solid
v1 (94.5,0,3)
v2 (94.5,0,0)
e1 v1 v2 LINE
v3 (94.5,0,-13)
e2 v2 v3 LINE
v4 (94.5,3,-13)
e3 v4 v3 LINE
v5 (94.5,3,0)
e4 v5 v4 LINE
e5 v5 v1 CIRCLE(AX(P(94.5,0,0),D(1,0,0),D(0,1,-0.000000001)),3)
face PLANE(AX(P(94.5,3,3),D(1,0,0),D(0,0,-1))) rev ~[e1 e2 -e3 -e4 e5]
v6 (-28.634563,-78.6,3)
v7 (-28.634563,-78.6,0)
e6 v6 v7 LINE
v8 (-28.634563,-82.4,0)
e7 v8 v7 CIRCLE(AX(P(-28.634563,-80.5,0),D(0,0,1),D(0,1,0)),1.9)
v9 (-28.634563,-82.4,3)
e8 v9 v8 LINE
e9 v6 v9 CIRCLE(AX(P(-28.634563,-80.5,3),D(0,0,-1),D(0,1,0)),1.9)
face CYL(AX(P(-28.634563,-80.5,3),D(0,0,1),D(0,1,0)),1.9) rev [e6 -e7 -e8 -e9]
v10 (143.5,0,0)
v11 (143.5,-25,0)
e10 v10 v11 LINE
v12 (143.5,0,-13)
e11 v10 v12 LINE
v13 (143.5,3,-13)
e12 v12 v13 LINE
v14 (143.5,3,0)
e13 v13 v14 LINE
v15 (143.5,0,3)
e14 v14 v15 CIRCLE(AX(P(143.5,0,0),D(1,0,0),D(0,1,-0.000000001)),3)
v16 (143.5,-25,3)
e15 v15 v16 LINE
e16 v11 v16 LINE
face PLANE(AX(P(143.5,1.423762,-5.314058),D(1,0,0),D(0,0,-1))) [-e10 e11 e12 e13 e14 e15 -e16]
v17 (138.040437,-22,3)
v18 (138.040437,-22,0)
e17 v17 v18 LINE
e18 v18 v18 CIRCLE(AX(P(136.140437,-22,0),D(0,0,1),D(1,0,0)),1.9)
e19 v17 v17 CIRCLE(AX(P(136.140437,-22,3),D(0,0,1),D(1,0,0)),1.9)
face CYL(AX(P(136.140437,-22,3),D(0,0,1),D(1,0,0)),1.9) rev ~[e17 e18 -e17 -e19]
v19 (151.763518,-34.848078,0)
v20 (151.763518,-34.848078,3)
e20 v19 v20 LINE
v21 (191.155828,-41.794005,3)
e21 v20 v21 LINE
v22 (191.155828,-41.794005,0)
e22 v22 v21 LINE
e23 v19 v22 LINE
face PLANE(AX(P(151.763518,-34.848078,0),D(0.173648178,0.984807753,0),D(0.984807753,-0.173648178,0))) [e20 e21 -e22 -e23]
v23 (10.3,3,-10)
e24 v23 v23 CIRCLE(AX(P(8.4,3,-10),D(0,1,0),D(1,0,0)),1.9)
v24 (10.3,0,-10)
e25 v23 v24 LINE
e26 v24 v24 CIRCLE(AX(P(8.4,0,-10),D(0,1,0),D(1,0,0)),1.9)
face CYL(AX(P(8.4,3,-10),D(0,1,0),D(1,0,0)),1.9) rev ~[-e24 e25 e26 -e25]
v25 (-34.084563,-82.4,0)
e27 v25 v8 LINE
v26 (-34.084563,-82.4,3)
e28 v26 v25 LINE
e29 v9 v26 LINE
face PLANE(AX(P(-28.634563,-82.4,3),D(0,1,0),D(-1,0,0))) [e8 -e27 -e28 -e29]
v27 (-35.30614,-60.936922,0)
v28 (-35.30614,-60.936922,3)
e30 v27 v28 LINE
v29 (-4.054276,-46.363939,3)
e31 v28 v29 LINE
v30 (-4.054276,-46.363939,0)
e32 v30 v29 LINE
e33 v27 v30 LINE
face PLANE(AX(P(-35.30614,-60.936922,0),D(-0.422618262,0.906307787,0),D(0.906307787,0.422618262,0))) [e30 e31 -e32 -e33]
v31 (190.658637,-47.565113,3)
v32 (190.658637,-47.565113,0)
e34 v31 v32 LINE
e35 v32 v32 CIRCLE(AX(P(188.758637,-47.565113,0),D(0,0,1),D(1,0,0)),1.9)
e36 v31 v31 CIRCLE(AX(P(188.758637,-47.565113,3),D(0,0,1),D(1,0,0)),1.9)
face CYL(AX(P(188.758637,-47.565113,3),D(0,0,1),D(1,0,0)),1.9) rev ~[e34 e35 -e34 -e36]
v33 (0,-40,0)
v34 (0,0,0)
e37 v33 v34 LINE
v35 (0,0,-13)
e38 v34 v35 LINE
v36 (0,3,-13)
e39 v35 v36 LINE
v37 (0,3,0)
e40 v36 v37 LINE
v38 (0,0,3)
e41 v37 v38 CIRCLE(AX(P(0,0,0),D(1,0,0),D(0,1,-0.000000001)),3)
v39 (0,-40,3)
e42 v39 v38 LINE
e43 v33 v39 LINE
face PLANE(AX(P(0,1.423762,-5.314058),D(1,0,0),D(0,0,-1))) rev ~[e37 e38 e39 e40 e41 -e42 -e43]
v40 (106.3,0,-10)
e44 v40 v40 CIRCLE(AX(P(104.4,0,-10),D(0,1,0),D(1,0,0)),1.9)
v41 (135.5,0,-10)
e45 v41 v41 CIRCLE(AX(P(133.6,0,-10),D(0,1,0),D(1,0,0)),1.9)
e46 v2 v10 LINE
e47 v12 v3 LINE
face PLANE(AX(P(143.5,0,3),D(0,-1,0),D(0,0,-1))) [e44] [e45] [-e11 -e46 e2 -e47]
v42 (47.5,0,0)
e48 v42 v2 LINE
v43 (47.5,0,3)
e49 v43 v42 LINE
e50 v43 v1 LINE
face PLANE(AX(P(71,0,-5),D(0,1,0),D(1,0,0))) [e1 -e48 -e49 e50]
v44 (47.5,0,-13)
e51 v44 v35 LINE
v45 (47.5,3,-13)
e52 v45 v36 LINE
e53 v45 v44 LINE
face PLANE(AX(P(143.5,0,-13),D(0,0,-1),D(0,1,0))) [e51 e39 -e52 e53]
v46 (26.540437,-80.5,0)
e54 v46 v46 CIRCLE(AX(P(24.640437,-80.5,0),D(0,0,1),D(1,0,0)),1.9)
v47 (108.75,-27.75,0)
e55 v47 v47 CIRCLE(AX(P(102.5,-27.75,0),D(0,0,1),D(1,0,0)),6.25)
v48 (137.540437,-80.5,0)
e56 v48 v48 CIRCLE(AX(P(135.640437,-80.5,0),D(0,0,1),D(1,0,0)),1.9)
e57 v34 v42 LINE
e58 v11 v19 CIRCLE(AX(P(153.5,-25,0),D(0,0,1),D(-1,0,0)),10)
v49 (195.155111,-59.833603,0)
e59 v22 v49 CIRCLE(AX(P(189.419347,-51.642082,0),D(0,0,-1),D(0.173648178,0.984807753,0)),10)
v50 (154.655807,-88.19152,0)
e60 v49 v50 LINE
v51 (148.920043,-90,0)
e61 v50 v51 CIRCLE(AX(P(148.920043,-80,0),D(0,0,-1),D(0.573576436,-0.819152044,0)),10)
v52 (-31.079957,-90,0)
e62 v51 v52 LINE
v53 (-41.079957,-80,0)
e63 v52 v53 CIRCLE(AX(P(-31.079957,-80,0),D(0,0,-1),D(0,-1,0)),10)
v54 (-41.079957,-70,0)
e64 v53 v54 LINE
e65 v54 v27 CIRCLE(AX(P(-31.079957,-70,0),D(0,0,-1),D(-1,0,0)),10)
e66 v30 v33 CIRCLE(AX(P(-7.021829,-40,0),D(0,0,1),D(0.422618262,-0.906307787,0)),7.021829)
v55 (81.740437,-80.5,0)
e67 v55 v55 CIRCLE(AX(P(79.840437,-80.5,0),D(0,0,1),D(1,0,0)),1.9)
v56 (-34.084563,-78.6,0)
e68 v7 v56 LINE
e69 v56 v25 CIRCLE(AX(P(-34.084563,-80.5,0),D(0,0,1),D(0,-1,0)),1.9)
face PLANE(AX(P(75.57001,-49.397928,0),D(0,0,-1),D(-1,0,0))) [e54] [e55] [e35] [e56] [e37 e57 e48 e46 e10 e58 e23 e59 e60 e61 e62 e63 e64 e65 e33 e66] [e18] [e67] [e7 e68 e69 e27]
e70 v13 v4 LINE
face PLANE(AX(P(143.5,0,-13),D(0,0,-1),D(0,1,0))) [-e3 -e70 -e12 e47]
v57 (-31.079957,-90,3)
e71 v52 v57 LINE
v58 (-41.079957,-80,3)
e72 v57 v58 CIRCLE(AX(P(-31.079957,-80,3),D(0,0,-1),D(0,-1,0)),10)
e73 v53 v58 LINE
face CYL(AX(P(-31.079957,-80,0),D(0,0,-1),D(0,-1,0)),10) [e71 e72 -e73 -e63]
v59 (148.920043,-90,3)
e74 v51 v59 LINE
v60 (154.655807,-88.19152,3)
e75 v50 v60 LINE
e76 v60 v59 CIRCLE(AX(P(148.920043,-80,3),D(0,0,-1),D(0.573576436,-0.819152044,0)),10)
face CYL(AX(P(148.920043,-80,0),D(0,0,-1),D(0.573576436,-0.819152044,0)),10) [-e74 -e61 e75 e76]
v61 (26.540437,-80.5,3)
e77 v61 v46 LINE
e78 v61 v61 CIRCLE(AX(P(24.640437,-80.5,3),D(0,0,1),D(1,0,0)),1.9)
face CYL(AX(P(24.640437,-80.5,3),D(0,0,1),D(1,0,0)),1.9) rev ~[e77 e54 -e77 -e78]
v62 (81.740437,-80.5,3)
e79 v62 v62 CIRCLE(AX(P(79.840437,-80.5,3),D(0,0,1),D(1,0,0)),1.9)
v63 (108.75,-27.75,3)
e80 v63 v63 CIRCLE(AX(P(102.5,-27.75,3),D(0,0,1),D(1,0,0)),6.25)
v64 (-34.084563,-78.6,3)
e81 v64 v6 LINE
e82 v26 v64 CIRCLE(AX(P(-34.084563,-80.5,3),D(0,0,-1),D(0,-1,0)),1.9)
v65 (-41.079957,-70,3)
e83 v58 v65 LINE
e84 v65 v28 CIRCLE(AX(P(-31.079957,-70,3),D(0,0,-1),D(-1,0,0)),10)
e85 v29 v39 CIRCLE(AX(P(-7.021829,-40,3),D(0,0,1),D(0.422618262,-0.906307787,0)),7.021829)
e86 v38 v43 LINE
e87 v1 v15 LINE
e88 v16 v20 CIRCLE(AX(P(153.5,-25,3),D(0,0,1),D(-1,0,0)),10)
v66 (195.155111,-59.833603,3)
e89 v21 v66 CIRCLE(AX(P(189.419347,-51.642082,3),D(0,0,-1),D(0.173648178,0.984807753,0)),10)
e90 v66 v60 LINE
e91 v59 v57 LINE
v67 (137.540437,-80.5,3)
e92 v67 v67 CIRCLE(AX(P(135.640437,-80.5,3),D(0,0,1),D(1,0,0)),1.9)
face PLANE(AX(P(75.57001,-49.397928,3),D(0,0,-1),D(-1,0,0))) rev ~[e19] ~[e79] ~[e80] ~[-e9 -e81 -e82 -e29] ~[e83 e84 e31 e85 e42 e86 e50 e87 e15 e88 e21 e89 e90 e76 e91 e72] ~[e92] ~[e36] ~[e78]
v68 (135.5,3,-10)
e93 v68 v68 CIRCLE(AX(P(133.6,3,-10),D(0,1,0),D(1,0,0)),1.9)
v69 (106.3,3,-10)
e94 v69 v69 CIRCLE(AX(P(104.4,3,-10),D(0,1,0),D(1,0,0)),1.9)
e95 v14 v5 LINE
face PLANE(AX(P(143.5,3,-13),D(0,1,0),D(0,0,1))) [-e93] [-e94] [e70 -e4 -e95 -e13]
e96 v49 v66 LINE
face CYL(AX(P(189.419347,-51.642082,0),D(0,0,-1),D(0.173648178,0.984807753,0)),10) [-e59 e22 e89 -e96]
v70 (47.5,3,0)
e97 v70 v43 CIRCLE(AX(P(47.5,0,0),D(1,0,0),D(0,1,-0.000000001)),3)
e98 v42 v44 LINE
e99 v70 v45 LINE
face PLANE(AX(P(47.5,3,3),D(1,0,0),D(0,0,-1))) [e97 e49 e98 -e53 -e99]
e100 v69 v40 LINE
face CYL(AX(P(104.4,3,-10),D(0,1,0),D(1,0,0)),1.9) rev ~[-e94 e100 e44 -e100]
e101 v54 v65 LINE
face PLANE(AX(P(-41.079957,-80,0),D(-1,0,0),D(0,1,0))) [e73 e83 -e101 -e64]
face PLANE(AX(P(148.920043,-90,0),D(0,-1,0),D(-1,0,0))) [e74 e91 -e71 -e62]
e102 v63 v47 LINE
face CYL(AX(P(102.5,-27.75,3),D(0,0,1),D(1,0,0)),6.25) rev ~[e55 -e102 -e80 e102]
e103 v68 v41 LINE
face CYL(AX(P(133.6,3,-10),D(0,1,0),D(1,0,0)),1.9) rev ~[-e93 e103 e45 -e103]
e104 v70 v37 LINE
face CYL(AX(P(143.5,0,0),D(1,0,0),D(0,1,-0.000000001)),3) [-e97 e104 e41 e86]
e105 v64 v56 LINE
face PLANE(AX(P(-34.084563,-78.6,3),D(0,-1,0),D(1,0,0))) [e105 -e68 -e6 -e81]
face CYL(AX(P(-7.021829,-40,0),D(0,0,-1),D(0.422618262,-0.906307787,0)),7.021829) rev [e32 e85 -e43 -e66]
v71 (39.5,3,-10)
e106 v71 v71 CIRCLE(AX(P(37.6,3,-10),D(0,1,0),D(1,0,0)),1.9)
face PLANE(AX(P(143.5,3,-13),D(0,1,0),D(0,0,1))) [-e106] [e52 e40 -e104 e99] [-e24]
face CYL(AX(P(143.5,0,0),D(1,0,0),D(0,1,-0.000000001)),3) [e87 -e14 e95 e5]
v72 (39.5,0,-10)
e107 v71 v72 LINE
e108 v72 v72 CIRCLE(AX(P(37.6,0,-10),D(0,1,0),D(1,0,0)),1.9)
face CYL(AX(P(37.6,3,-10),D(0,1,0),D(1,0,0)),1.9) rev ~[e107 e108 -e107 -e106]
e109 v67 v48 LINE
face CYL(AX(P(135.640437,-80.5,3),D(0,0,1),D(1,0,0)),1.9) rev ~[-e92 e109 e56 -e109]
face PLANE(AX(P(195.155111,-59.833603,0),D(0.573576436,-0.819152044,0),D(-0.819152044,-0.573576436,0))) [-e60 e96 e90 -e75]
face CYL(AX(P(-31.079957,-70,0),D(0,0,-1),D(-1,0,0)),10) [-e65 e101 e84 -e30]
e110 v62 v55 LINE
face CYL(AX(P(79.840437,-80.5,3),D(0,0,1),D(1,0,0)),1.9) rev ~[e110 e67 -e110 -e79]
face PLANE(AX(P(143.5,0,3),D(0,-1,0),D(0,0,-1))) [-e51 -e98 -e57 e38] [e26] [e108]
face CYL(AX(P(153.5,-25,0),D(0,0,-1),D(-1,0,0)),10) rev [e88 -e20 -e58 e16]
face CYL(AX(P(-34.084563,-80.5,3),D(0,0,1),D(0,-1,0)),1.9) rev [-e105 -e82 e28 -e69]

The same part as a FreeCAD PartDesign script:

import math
import FreeCAD as App
import Part
import Sketcher
Q = App.Units.Quantity

doc = App.newDocument("Part")
params = doc.addObject("Spreadsheet::Sheet", "Params")
for row, (alias, value) in enumerate([
    ("sketch1_radius", "10 mm"),
    ("sketch1_width", "180 mm"),
    ("sketch1_height", "40 mm"),
    ("sketch1_height2", "10 mm"),
    ("sketch1_height3", "25 mm"),
    ("pad1_length", "3 mm"),
    ("sketch2_diameter", "3.8 mm"),
    ("sketch2_diameter2", "12.5 mm"),
    ("sketch2_width", "5.45 mm"),
    ("sketch3_radius", "3 mm"),
    ("sketch3_height", "13 mm"),
    ("pad2_length", "143.5 mm"),
    ("sketch4_width", "47 mm"),
    ("sketch4_height", "16 mm"),
    ("pocket2_length", "3 mm"),
    ("sketch5_diameter", "3.8 mm"),
], start=1):
    params.set(f"A{row}", alias)
    params.set(f"B{row}", "=" + value)
    params.setAlias(f"B{row}", alias)

body = doc.addObject("PartDesign::Body", "Body")

sketch1 = body.newObject("Sketcher::SketchObject", "Sketch")
sketch1.AttachmentSupport = (doc.getObject("XY_Plane"), [""])
sketch1.MapMode = "FlatFace"
sketch1.addGeometry(Part.LineSegment(App.Vector(144, 0, 0), App.Vector(0, 0, 0)), False)
sketch1.addGeometry(Part.LineSegment(App.Vector(0, 0, 0), App.Vector(0, -40, 0)), False)
sketch1.addGeometry(Part.ArcOfCircle(Part.Circle(App.Vector(-7, -40, 0), App.Vector(0, 0, 1), 7), math.radians(-65), math.radians(0)), False)
sketch1.addGeometry(Part.LineSegment(App.Vector(-4, -46, 0), App.Vector(-35, -61, 0)), False)
sketch1.addGeometry(Part.ArcOfCircle(Part.Circle(App.Vector(-31, -70, 0), App.Vector(0, 0, 1), 10), math.radians(115), math.radians(180)), False)
sketch1.addGeometry(Part.LineSegment(App.Vector(-41, -70, 0), App.Vector(-41, -80, 0)), False)
sketch1.addGeometry(Part.ArcOfCircle(Part.Circle(App.Vector(-31, -80, 0), App.Vector(0, 0, 1), 10), math.radians(-180), math.radians(-90)), False)
sketch1.addGeometry(Part.LineSegment(App.Vector(-31, -90, 0), App.Vector(149, -90, 0)), False)
sketch1.addGeometry(Part.ArcOfCircle(Part.Circle(App.Vector(149, -80, 0), App.Vector(0, 0, 1), 10), math.radians(-90), math.radians(-55)), False)
sketch1.addGeometry(Part.LineSegment(App.Vector(155, -88, 0), App.Vector(195, -60, 0)), False)
sketch1.addGeometry(Part.ArcOfCircle(Part.Circle(App.Vector(189, -52, 0), App.Vector(0, 0, 1), 10), math.radians(-55), math.radians(80)), False)
sketch1.addGeometry(Part.LineSegment(App.Vector(191, -42, 0), App.Vector(152, -35, 0)), False)
sketch1.addGeometry(Part.ArcOfCircle(Part.Circle(App.Vector(154, -25, 0), App.Vector(0, 0, 1), 10), math.radians(180), math.radians(260)), False)
sketch1.addGeometry(Part.LineSegment(App.Vector(144, -25, 0), App.Vector(144, 0, 0)), False)
sketch1.addConstraint(Sketcher.Constraint("Coincident", 0, 2, 1, 1))
sketch1.addConstraint(Sketcher.Constraint("Tangent", 1, 2, 2, 2))
sketch1.addConstraint(Sketcher.Constraint("Tangent", 2, 1, 3, 1))
sketch1.addConstraint(Sketcher.Constraint("Tangent", 3, 2, 4, 1))
sketch1.addConstraint(Sketcher.Constraint("Tangent", 4, 2, 5, 1))
sketch1.addConstraint(Sketcher.Constraint("Tangent", 5, 2, 6, 1))
sketch1.addConstraint(Sketcher.Constraint("Tangent", 6, 2, 7, 1))
sketch1.addConstraint(Sketcher.Constraint("Tangent", 7, 2, 8, 1))
sketch1.addConstraint(Sketcher.Constraint("Tangent", 8, 2, 9, 1))
sketch1.addConstraint(Sketcher.Constraint("Tangent", 9, 2, 10, 1))
sketch1.addConstraint(Sketcher.Constraint("Tangent", 10, 2, 11, 1))
sketch1.addConstraint(Sketcher.Constraint("Tangent", 11, 2, 12, 2))
sketch1.addConstraint(Sketcher.Constraint("Tangent", 12, 1, 13, 1))
sketch1.addConstraint(Sketcher.Constraint("Coincident", 13, 2, 0, 1))
sketch1.addConstraint(Sketcher.Constraint("Horizontal", 0))
sketch1.addConstraint(Sketcher.Constraint("Vertical", 1))
sketch1.addConstraint(Sketcher.Constraint("Vertical", 5))
sketch1.addConstraint(Sketcher.Constraint("Horizontal", 7))
sketch1.addConstraint(Sketcher.Constraint("Vertical", 13))
sketch1.addConstraint(Sketcher.Constraint("Coincident", 0, 2, -1, 1))
sketch1.addConstraint(Sketcher.Constraint("Equal", 4, 6))
sketch1.addConstraint(Sketcher.Constraint("Equal", 6, 8))
sketch1.addConstraint(Sketcher.Constraint("Equal", 8, 10))
sketch1.addConstraint(Sketcher.Constraint("Equal", 10, 12))
sketch1.addConstraint(Sketcher.Constraint("Radius", 4, Q("10 mm")))
sketch1.addConstraint(Sketcher.Constraint("DistanceX", 7, 1, 7, 2, Q("180 mm")))
sketch1.addConstraint(Sketcher.Constraint("DistanceY", 1, 2, 1, 1, Q("40 mm")))
sketch1.addConstraint(Sketcher.Constraint("DistanceY", 5, 2, 5, 1, Q("10 mm")))
sketch1.addConstraint(Sketcher.Constraint("DistanceY", 13, 1, 13, 2, Q("25 mm")))
sketch1.addConstraint(Sketcher.Constraint("Angle", 3, Q("-155 deg")))
sketch1.addConstraint(Sketcher.Constraint("Angle", 9, Q("35 deg")))
sketch1.addConstraint(Sketcher.Constraint("Angle", 11, Q("170 deg")))
sketch1.addConstraint(Sketcher.Constraint("Distance", 11, Q("40 mm")))
sketch1.addConstraint(Sketcher.Constraint("DistanceX", 0, 2, 0, 1, Q("143.5 mm")))
sketch1.addConstraint(Sketcher.Constraint("DistanceY", 4, 3, -1, 1, Q("70 mm")))
sketch1.setExpression("Constraints[24]", "Params.sketch1_radius")
sketch1.setExpression("Constraints[25]", "Params.sketch1_width")
sketch1.setExpression("Constraints[26]", "Params.sketch1_height")
sketch1.setExpression("Constraints[27]", "Params.sketch1_height2")
sketch1.setExpression("Constraints[28]", "Params.sketch1_height3")
pad1 = body.newObject("PartDesign::Pad", "Pad")
pad1.Profile = sketch1
pad1.setExpression("Length", "Params.pad1_length")

sketch2 = body.newObject("Sketcher::SketchObject", "Sketch001")
sketch2.AttachmentSupport = (doc.getObject("XY_Plane"), [""])
sketch2.MapMode = "FlatFace"
sketch2.AttachmentOffset = App.Placement(App.Vector(0, 0, 3), App.Rotation())
sketch2.addGeometry(Part.Circle(App.Vector(188.8, -47.6, 0), App.Vector(0, 0, 1), 1.9), False)
sketch2.addGeometry(Part.Circle(App.Vector(135.6, -80.5, 0), App.Vector(0, 0, 1), 1.9), False)
sketch2.addGeometry(Part.Circle(App.Vector(79.8, -80.5, 0), App.Vector(0, 0, 1), 1.9), False)
sketch2.addGeometry(Part.Circle(App.Vector(24.6, -80.5, 0), App.Vector(0, 0, 1), 1.9), False)
sketch2.addGeometry(Part.Circle(App.Vector(102.5, -27.8, 0), App.Vector(0, 0, 1), 6.2), False)
sketch2.addGeometry(Part.Circle(App.Vector(136.1, -22, 0), App.Vector(0, 0, 1), 1.9), False)
sketch2.addGeometry(Part.LineSegment(App.Vector(-34.1, -82.4, 0), App.Vector(-28.6, -82.4, 0)), False)
sketch2.addGeometry(Part.ArcOfCircle(Part.Circle(App.Vector(-28.6, -80.5, 0), App.Vector(0, 0, 1), 1.9), math.radians(-90), math.radians(90)), False)
sketch2.addGeometry(Part.LineSegment(App.Vector(-28.6, -78.6, 0), App.Vector(-34.1, -78.6, 0)), False)
sketch2.addGeometry(Part.ArcOfCircle(Part.Circle(App.Vector(-34.1, -80.5, 0), App.Vector(0, 0, 1), 1.9), math.radians(90), math.radians(270)), False)
sketch2.addConstraint(Sketcher.Constraint("Tangent", 6, 2, 7, 1))
sketch2.addConstraint(Sketcher.Constraint("Tangent", 7, 2, 8, 1))
sketch2.addConstraint(Sketcher.Constraint("Tangent", 8, 2, 9, 1))
sketch2.addConstraint(Sketcher.Constraint("Tangent", 9, 2, 6, 1))
sketch2.addConstraint(Sketcher.Constraint("Horizontal", 6))
sketch2.addConstraint(Sketcher.Constraint("Horizontal", 8))
sketch2.addConstraint(Sketcher.Constraint("Equal", 0, 1))
sketch2.addConstraint(Sketcher.Constraint("Equal", 1, 2))
sketch2.addConstraint(Sketcher.Constraint("Equal", 2, 3))
sketch2.addConstraint(Sketcher.Constraint("Equal", 3, 5))
sketch2.addConstraint(Sketcher.Constraint("Equal", 5, 7))
sketch2.addConstraint(Sketcher.Constraint("Horizontal", 1, 3, 2, 3))
sketch2.addConstraint(Sketcher.Constraint("Horizontal", 2, 3, 3, 3))
sketch2.addConstraint(Sketcher.Constraint("Horizontal", 3, 3, 7, 3))
sketch2.addConstraint(Sketcher.Constraint("Diameter", 0, Q("3.8 mm")))
sketch2.addConstraint(Sketcher.Constraint("Diameter", 4, Q("12.5 mm")))
sketch2.addConstraint(Sketcher.Constraint("DistanceY", 5, 3, -1, 1, Q("22 mm")))
sketch2.addConstraint(Sketcher.Constraint("DistanceX", 3, 3, 1, 3, Q("111 mm")))
sketch2.addConstraint(Sketcher.Constraint("DistanceX", 6, 1, 6, 2, Q("5.45 mm")))
sketch2.addConstraint(Sketcher.Constraint("DistanceY", 1, 3, -1, 1, Q("80.5 mm")))
sketch2.addConstraint(Sketcher.Constraint("DistanceX", -1, 1, 4, 3, Q("102.5 mm")))
sketch2.addConstraint(Sketcher.Constraint("DistanceX", 2, 3, 1, 3, Q("55.8 mm")))
sketch2.addConstraint(Sketcher.Constraint("DistanceX", 1, 3, 5, 3, Q("0.5 mm")))
sketch2.addConstraint(Sketcher.Constraint("DistanceY", 4, 3, -1, 1, Q("27.75 mm")))
sketch2.addConstraint(Sketcher.Constraint("DistanceX", 7, 3, 3, 3, Q("53.275 mm")))
sketch2.addConstraint(Sketcher.Constraint("DistanceX", 1, 3, 0, 3, Q("53.1182 mm")))
sketch2.addConstraint(Sketcher.Constraint("DistanceX", -1, 1, 0, 3, Q("188.758637 mm")))
sketch2.addConstraint(Sketcher.Constraint("DistanceY", 0, 3, -1, 1, Q("47.565113 mm")))
sketch2.setExpression("Constraints[14]", "Params.sketch2_diameter")
sketch2.setExpression("Constraints[15]", "Params.sketch2_diameter2")
sketch2.setExpression("Constraints[18]", "Params.sketch2_width")
pocket1 = body.newObject("PartDesign::Pocket", "Pocket")
pocket1.Profile = sketch2
pocket1.Type = "ThroughAll"

sketch3 = body.newObject("Sketcher::SketchObject", "Sketch002")
sketch3.AttachmentSupport = (doc.getObject("YZ_Plane"), [""])
sketch3.MapMode = "FlatFace"
sketch3.AttachmentOffset = App.Placement(App.Vector(0, 0, 143.5), App.Rotation())
sketch3.addGeometry(Part.LineSegment(App.Vector(0, -13, 0), App.Vector(3, -13, 0)), False)
sketch3.addGeometry(Part.LineSegment(App.Vector(3, -13, 0), App.Vector(3, 0, 0)), False)
sketch3.addGeometry(Part.ArcOfCircle(Part.Circle(App.Vector(0, 0, 0), App.Vector(0, 0, 1), 3), math.radians(0), math.radians(90)), False)
sketch3.addGeometry(Part.LineSegment(App.Vector(0, 3, 0), App.Vector(0, -13, 0)), False)
sketch3.addConstraint(Sketcher.Constraint("Coincident", 0, 2, 1, 1))
sketch3.addConstraint(Sketcher.Constraint("Tangent", 1, 2, 2, 1))
sketch3.addConstraint(Sketcher.Constraint("Coincident", 2, 2, 3, 1))
sketch3.addConstraint(Sketcher.Constraint("Coincident", 3, 2, 0, 1))
sketch3.addConstraint(Sketcher.Constraint("Horizontal", 0))
sketch3.addConstraint(Sketcher.Constraint("Vertical", 1))
sketch3.addConstraint(Sketcher.Constraint("Vertical", 3))
sketch3.addConstraint(Sketcher.Constraint("Coincident", 2, 3, -1, 1))
sketch3.addConstraint(Sketcher.Constraint("PointOnObject", 2, 2, -2))
sketch3.addConstraint(Sketcher.Constraint("Radius", 2, Q("3 mm")))
sketch3.addConstraint(Sketcher.Constraint("DistanceY", 1, 1, 1, 2, Q("13 mm")))
sketch3.setExpression("Constraints[9]", "Params.sketch3_radius")
sketch3.setExpression("Constraints[10]", "Params.sketch3_height")
pad2 = body.newObject("PartDesign::Pad", "Pad001")
pad2.Profile = sketch3
pad2.setExpression("Length", "Params.pad2_length")
pad2.Reversed = True

sketch4 = body.newObject("Sketcher::SketchObject", "Sketch003")
sketch4.AttachmentSupport = (doc.getObject("XZ_Plane"), [""])
sketch4.MapMode = "FlatFace"
sketch4.AttachmentOffset = App.Placement(App.Vector(0, 0, -3), App.Rotation())
sketch4.addGeometry(Part.LineSegment(App.Vector(48, -13, 0), App.Vector(48, 3, 0)), False)
sketch4.addGeometry(Part.LineSegment(App.Vector(48, 3, 0), App.Vector(94, 3, 0)), False)
sketch4.addGeometry(Part.LineSegment(App.Vector(94, 3, 0), App.Vector(94, -13, 0)), False)
sketch4.addGeometry(Part.LineSegment(App.Vector(94, -13, 0), App.Vector(48, -13, 0)), False)
sketch4.addConstraint(Sketcher.Constraint("Coincident", 0, 2, 1, 1))
sketch4.addConstraint(Sketcher.Constraint("Coincident", 1, 2, 2, 1))
sketch4.addConstraint(Sketcher.Constraint("Coincident", 2, 2, 3, 1))
sketch4.addConstraint(Sketcher.Constraint("Coincident", 3, 2, 0, 1))
sketch4.addConstraint(Sketcher.Constraint("Vertical", 0))
sketch4.addConstraint(Sketcher.Constraint("Horizontal", 1))
sketch4.addConstraint(Sketcher.Constraint("Vertical", 2))
sketch4.addConstraint(Sketcher.Constraint("Horizontal", 3))
sketch4.addConstraint(Sketcher.Constraint("DistanceX", 1, 1, 1, 2, Q("47 mm")))
sketch4.addConstraint(Sketcher.Constraint("DistanceY", 0, 1, 0, 2, Q("16 mm")))
sketch4.addConstraint(Sketcher.Constraint("DistanceY", -1, 1, 0, 2, Q("3 mm")))
sketch4.addConstraint(Sketcher.Constraint("DistanceX", -1, 1, 0, 2, Q("47.5 mm")))
sketch4.setExpression("Constraints[8]", "Params.sketch4_width")
sketch4.setExpression("Constraints[9]", "Params.sketch4_height")
pocket2 = body.newObject("PartDesign::Pocket", "Pocket001")
pocket2.Profile = sketch4
pocket2.setExpression("Length", "Params.pocket2_length")
pocket2.Reversed = True

sketch5 = body.newObject("Sketcher::SketchObject", "Sketch004")
sketch5.AttachmentSupport = (doc.getObject("XZ_Plane"), [""])
sketch5.MapMode = "FlatFace"
sketch5.AttachmentOffset = App.Placement(App.Vector(0, 0, -3), App.Rotation())
sketch5.addGeometry(Part.Circle(App.Vector(8.4, -10, 0), App.Vector(0, 0, 1), 1.9), False)
sketch5.addGeometry(Part.Circle(App.Vector(37.6, -10, 0), App.Vector(0, 0, 1), 1.9), False)
sketch5.addGeometry(Part.Circle(App.Vector(104.4, -10, 0), App.Vector(0, 0, 1), 1.9), False)
sketch5.addGeometry(Part.Circle(App.Vector(133.6, -10, 0), App.Vector(0, 0, 1), 1.9), False)
sketch5.addConstraint(Sketcher.Constraint("Equal", 0, 1))
sketch5.addConstraint(Sketcher.Constraint("Equal", 1, 2))
sketch5.addConstraint(Sketcher.Constraint("Equal", 2, 3))
sketch5.addConstraint(Sketcher.Constraint("Horizontal", 0, 3, 1, 3))
sketch5.addConstraint(Sketcher.Constraint("Horizontal", 1, 3, 2, 3))
sketch5.addConstraint(Sketcher.Constraint("Horizontal", 2, 3, 3, 3))
sketch5.addConstraint(Sketcher.Constraint("Diameter", 0, Q("3.8 mm")))
sketch5.addConstraint(Sketcher.Constraint("DistanceY", 0, 3, -1, 1, Q("10 mm")))
sketch5.addConstraint(Sketcher.Constraint("DistanceX", 0, 3, 2, 3, Q("96 mm")))
sketch5.addConstraint(Sketcher.Constraint("DistanceX", 1, 3, 3, 3, Q("96 mm")))
sketch5.addConstraint(Sketcher.Constraint("DistanceX", -1, 1, 0, 3, Q("8.4 mm")))
sketch5.addConstraint(Sketcher.Constraint("DistanceX", -1, 1, 1, 3, Q("37.6 mm")))
sketch5.setExpression("Constraints[6]", "Params.sketch5_diameter")
pocket3 = body.newObject("PartDesign::Pocket", "Pocket002")
pocket3.Profile = sketch5
pocket3.Type = "ThroughAll"
pocket3.Reversed = True

doc.recompute()
